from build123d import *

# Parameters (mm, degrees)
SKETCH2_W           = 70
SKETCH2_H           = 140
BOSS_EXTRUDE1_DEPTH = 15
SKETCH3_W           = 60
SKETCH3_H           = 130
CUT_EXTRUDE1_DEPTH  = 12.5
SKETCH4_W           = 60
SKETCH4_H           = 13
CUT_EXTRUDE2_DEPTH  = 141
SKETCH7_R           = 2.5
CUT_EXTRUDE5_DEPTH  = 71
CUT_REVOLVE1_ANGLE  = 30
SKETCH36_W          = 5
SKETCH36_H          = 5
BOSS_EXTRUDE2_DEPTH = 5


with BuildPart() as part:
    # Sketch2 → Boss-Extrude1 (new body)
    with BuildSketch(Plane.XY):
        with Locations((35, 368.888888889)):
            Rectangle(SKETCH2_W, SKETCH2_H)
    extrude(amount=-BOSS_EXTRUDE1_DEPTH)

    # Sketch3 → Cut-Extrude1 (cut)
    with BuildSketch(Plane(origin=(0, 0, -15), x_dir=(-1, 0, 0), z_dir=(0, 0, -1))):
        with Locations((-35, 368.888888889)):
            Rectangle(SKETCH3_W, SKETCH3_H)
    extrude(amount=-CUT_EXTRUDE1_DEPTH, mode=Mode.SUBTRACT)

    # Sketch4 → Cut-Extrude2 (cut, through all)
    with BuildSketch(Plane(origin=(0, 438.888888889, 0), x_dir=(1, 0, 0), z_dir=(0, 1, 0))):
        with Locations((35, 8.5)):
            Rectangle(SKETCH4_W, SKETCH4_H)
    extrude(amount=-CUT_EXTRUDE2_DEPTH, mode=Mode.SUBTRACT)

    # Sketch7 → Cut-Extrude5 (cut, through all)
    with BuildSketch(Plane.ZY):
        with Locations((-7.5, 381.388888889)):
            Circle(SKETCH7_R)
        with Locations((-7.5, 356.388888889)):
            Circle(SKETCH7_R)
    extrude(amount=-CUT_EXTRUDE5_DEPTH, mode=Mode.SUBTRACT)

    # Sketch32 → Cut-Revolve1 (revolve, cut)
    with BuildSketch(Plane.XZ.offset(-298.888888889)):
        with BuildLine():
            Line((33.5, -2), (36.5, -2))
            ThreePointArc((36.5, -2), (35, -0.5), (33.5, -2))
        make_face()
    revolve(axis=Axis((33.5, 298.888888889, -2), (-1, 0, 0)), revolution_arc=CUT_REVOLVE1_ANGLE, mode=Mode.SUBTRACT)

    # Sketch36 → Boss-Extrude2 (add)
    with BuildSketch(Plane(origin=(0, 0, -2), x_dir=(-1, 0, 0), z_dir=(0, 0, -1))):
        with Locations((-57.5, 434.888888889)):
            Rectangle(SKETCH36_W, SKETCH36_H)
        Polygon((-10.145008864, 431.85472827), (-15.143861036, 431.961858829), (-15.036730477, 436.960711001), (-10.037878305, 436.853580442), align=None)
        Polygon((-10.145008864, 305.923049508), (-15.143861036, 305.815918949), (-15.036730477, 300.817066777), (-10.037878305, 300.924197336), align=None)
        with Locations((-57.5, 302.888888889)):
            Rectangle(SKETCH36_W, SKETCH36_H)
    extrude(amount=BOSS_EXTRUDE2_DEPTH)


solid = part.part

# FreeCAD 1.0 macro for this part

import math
import FreeCAD as App
import Part
import Sketcher

V = App.Vector

doc = App.newDocument("Part")
body = doc.addObject("PartDesign::Body", "Body")

# Sketch on XY plane
sketch1 = body.newObject("Sketcher::SketchObject", "Sketch")
sketch1.AttachmentSupport = (doc.getObject("XY_Plane"), [""])
sketch1.MapMode = "FlatFace"
sketch1.addGeometry(Part.LineSegment(V(0, 438.888889, 0), V(0, 298.888889, 0)), False)
sketch1.addGeometry(Part.LineSegment(V(0, 298.888889, 0), V(70, 298.888889, 0)), False)
sketch1.addGeometry(Part.LineSegment(V(70, 298.888889, 0), V(70, 438.888889, 0)), False)
sketch1.addGeometry(Part.LineSegment(V(70, 438.888889, 0), V(0, 438.888889, 0)), False)
sketch1.addConstraint(Sketcher.Constraint("Coincident", 0, 2, 1, 1))
sketch1.addConstraint(Sketcher.Constraint("Coincident", 1, 2, 2, 1))
sketch1.addConstraint(Sketcher.Constraint("Coincident", 2, 2, 3, 1))
sketch1.addConstraint(Sketcher.Constraint("Coincident", 3, 2, 0, 1))
sketch1.addConstraint(Sketcher.Constraint("Vertical", 0))
sketch1.addConstraint(Sketcher.Constraint("Horizontal", 1))
sketch1.addConstraint(Sketcher.Constraint("Vertical", 2))
sketch1.addConstraint(Sketcher.Constraint("Horizontal", 3))
sketch1.addConstraint(Sketcher.Constraint("PointOnObject", 0, 2, -2))
sketch1.addConstraint(Sketcher.Constraint("DistanceX", 1, 1, 1, 2, 70.0))
sketch1.addConstraint(Sketcher.Constraint("DistanceY", 0, 2, 0, 1, 140.0))
sketch1.addConstraint(Sketcher.Constraint("DistanceY", -1, 1, 0, 2, 298.888889))
pad1 = body.newObject("PartDesign::Pad", "Pad")
pad1.Profile = sketch1
pad1.Length = 15
pad1.Reversed = True

# Sketch on XY plane
sketch2 = body.newObject("Sketcher::SketchObject", "Sketch001")
sketch2.AttachmentSupport = (doc.getObject("XY_Plane"), [""])
sketch2.MapMode = "FlatFace"
sketch2.AttachmentOffset = App.Placement(V(0, 0, -15), App.Rotation())
sketch2.addGeometry(Part.LineSegment(V(65, 433.888889, 0), V(65, 303.888889, 0)), False)
sketch2.addGeometry(Part.LineSegment(V(65, 303.888889, 0), V(5, 303.888889, 0)), False)
sketch2.addGeometry(Part.LineSegment(V(5, 303.888889, 0), V(5, 433.888889, 0)), False)
sketch2.addGeometry(Part.LineSegment(V(5, 433.888889, 0), V(65, 433.888889, 0)), False)
sketch2.addConstraint(Sketcher.Constraint("Coincident", 0, 2, 1, 1))
sketch2.addConstraint(Sketcher.Constraint("Coincident", 1, 2, 2, 1))
sketch2.addConstraint(Sketcher.Constraint("Coincident", 2, 2, 3, 1))
sketch2.addConstraint(Sketcher.Constraint("Coincident", 3, 2, 0, 1))
sketch2.addConstraint(Sketcher.Constraint("Vertical", 0))
sketch2.addConstraint(Sketcher.Constraint("Horizontal", 1))
sketch2.addConstraint(Sketcher.Constraint("Vertical", 2))
sketch2.addConstraint(Sketcher.Constraint("Horizontal", 3))
sketch2.addConstraint(Sketcher.Constraint("DistanceX", 1, 2, 1, 1, 60.0))
sketch2.addConstraint(Sketcher.Constraint("DistanceY", 0, 2, 0, 1, 130.0))
sketch2.addConstraint(Sketcher.Constraint("DistanceX", -1, 1, 0, 2, 65.0))
sketch2.addConstraint(Sketcher.Constraint("DistanceY", -1, 1, 0, 2, 303.888889))
pocket1 = body.newObject("PartDesign::Pocket", "Pocket")
pocket1.Profile = sketch2
pocket1.Length = 12.5
pocket1.Reversed = True

# Sketch on XZ plane
sketch3 = body.newObject("Sketcher::SketchObject", "Sketch002")
sketch3.AttachmentSupport = (doc.getObject("XZ_Plane"), [""])
sketch3.MapMode = "FlatFace"
sketch3.AttachmentOffset = App.Placement(V(0, 0, -438.888889), App.Rotation())
sketch3.addGeometry(Part.LineSegment(V(5, -15, 0), V(5, -2, 0)), False)
sketch3.addGeometry(Part.LineSegment(V(5, -2, 0), V(65, -2, 0)), False)
sketch3.addGeometry(Part.LineSegment(V(65, -2, 0), V(65, -15, 0)), False)
sketch3.addGeometry(Part.LineSegment(V(65, -15, 0), V(5, -15, 0)), False)
sketch3.addConstraint(Sketcher.Constraint("Coincident", 0, 2, 1, 1))
sketch3.addConstraint(Sketcher.Constraint("Coincident", 1, 2, 2, 1))
sketch3.addConstraint(Sketcher.Constraint("Coincident", 2, 2, 3, 1))
sketch3.addConstraint(Sketcher.Constraint("Coincident", 3, 2, 0, 1))
sketch3.addConstraint(Sketcher.Constraint("Vertical", 0))
sketch3.addConstraint(Sketcher.Constraint("Horizontal", 1))
sketch3.addConstraint(Sketcher.Constraint("Vertical", 2))
sketch3.addConstraint(Sketcher.Constraint("Horizontal", 3))
sketch3.addConstraint(Sketcher.Constraint("DistanceX", 1, 1, 1, 2, 60.0))
sketch3.addConstraint(Sketcher.Constraint("DistanceY", 0, 1, 0, 2, 13.0))
sketch3.addConstraint(Sketcher.Constraint("DistanceX", -1, 1, 0, 2, 5.0))
sketch3.addConstraint(Sketcher.Constraint("DistanceY", 0, 2, -1, 1, 2.0))
pocket2 = body.newObject("PartDesign::Pocket", "Pocket001")
pocket2.Profile = sketch3
pocket2.Type = "ThroughAll"
pocket2.Reversed = True

# Sketch on YZ plane
sketch4 = body.newObject("Sketcher::SketchObject", "Sketch003")
sketch4.AttachmentSupport = (doc.getObject("YZ_Plane"), [""])
sketch4.MapMode = "FlatFace"
sketch4.addGeometry(Part.Circle(V(381.388889, -7.5, 0), V(0, 0, 1), 2.5), False)
sketch4.addGeometry(Part.Circle(V(356.388889, -7.5, 0), V(0, 0, 1), 2.5), False)
sketch4.addConstraint(Sketcher.Constraint("Equal", 0, 1))
sketch4.addConstraint(Sketcher.Constraint("Horizontal", 0, 3, 1, 3))
sketch4.addConstraint(Sketcher.Constraint("Diameter", 0, 5.0))
sketch4.addConstraint(Sketcher.Constraint("DistanceX", 1, 3, 0, 3, 25.0))
sketch4.addConstraint(Sketcher.Constraint("DistanceY", 0, 3, -1, 1, 7.5))
sketch4.addConstraint(Sketcher.Constraint("DistanceX", -1, 1, 0, 3, 381.388889))
pocket3 = body.newObject("PartDesign::Pocket", "Pocket002")
pocket3.Profile = sketch4
pocket3.Type = "ThroughAll"
pocket3.Reversed = True

# Sketch on XZ plane
sketch5 = body.newObject("Sketcher::SketchObject", "Sketch004")
sketch5.AttachmentSupport = (doc.getObject("XZ_Plane"), [""])
sketch5.MapMode = "FlatFace"
sketch5.AttachmentOffset = App.Placement(V(0, 0, -298.888889), App.Rotation())
sketch5.addGeometry(Part.LineSegment(V(33.5, -2, 0), V(36.5, -2, 0)), False)
sketch5.addGeometry(Part.ArcOfCircle(Part.Circle(V(35, -2, 0), V(0, 0, 1), 1.5), math.radians(0), math.radians(180)), False)
sketch5.addGeometry(Part.LineSegment(V(36.5, -2, 0), V(33.5, -2, 0)), True)  # axis
sketch5.addConstraint(Sketcher.Constraint("Coincident", 0, 1, 1, 2))
sketch5.addConstraint(Sketcher.Constraint("Coincident", 1, 1, 0, 2))
sketch5.addConstraint(Sketcher.Constraint("Horizontal", 0))
sketch5.addConstraint(Sketcher.Constraint("Horizontal", 2))
sketch5.addConstraint(Sketcher.Constraint("Coincident", 2, 1, 1, 1))
sketch5.addConstraint(Sketcher.Constraint("Horizontal", 1, 3, 0, 1))
sketch5.addConstraint(Sketcher.Constraint("Equal", 0, 2))
sketch5.addConstraint(Sketcher.Constraint("Radius", 1, 1.5))
sketch5.addConstraint(Sketcher.Constraint("DistanceX", -1, 1, 1, 3, 35.0))
sketch5.addConstraint(Sketcher.Constraint("DistanceY", 1, 3, -1, 1, 2.0))
groove = body.newObject("PartDesign::Groove", "Groove")
groove.Profile = sketch5
groove.ReferenceAxis = (sketch5, ["Axis0"])
groove.Angle = 30

# Sketch on XY plane
sketch6 = body.newObject("Sketcher::SketchObject", "Sketch005")
sketch6.AttachmentSupport = (doc.getObject("XY_Plane"), [""])
sketch6.MapMode = "FlatFace"
sketch6.AttachmentOffset = App.Placement(V(0, 0, -2), App.Rotation())
sketch6.addGeometry(Part.LineSegment(V(60, 437.388889, 0), V(60, 432.388889, 0)), False)
sketch6.addGeometry(Part.LineSegment(V(60, 432.388889, 0), V(55, 432.388889, 0)), False)
sketch6.addGeometry(Part.LineSegment(V(55, 432.388889, 0), V(55, 437.388889, 0)), False)
sketch6.addGeometry(Part.LineSegment(V(55, 437.388889, 0), V(60, 437.388889, 0)), False)
sketch6.addGeometry(Part.LineSegment(V(15.143861, 431.961859, 0), V(10.145009, 431.854728, 0)), False)
sketch6.addGeometry(Part.LineSegment(V(10.145009, 431.854728, 0), V(10.037878, 436.85358, 0)), False)
sketch6.addGeometry(Part.LineSegment(V(10.037878, 436.85358, 0), V(15.03673, 436.960711, 0)), False)
sketch6.addGeometry(Part.LineSegment(V(15.03673, 436.960711, 0), V(15.143861, 431.961859, 0)), False)
sketch6.addGeometry(Part.LineSegment(V(10.145009, 305.92305, 0), V(15.143861, 305.815919, 0)), False)
sketch6.addGeometry(Part.LineSegment(V(15.143861, 305.815919, 0), V(15.03673, 300.817067, 0)), False)
sketch6.addGeometry(Part.LineSegment(V(15.03673, 300.817067, 0), V(10.037878, 300.924197, 0)), False)
sketch6.addGeometry(Part.LineSegment(V(10.037878, 300.924197, 0), V(10.145009, 305.92305, 0)), False)
sketch6.addGeometry(Part.LineSegment(V(60, 305.388889, 0), V(60, 300.388889, 0)), False)
sketch6.addGeometry(Part.LineSegment(V(60, 300.388889, 0), V(55, 300.388889, 0)), False)
sketch6.addGeometry(Part.LineSegment(V(55, 300.388889, 0), V(55, 305.388889, 0)), False)
sketch6.addGeometry(Part.LineSegment(V(55, 305.388889, 0), V(60, 305.388889, 0)), False)
sketch6.addConstraint(Sketcher.Constraint("Coincident", 0, 2, 1, 1))
sketch6.addConstraint(Sketcher.Constraint("Coincident", 1, 2, 2, 1))
sketch6.addConstraint(Sketcher.Constraint("Coincident", 2, 2, 3, 1))
sketch6.addConstraint(Sketcher.Constraint("Coincident", 3, 2, 0, 1))
sketch6.addConstraint(Sketcher.Constraint("Coincident", 4, 2, 5, 1))
sketch6.addConstraint(Sketcher.Constraint("Coincident", 5, 2, 6, 1))
sketch6.addConstraint(Sketcher.Constraint("Coincident", 6, 2, 7, 1))
sketch6.addConstraint(Sketcher.Constraint("Coincident", 7, 2, 4, 1))
sketch6.addConstraint(Sketcher.Constraint("Coincident", 8, 2, 9, 1))
sketch6.addConstraint(Sketcher.Constraint("Coincident", 9, 2, 10, 1))
sketch6.addConstraint(Sketcher.Constraint("Coincident", 10, 2, 11, 1))
sketch6.addConstraint(Sketcher.Constraint("Coincident", 11, 2, 8, 1))
sketch6.addConstraint(Sketcher.Constraint("Coincident", 12, 2, 13, 1))
sketch6.addConstraint(Sketcher.Constraint("Coincident", 13, 2, 14, 1))
sketch6.addConstraint(Sketcher.Constraint("Coincident", 14, 2, 15, 1))
sketch6.addConstraint(Sketcher.Constraint("Coincident", 15, 2, 12, 1))
sketch6.addConstraint(Sketcher.Constraint("Vertical", 0))
sketch6.addConstraint(Sketcher.Constraint("Horizontal", 1))
sketch6.addConstraint(Sketcher.Constraint("Vertical", 2))
sketch6.addConstraint(Sketcher.Constraint("Horizontal", 3))
sketch6.addConstraint(Sketcher.Constraint("Vertical", 12))
sketch6.addConstraint(Sketcher.Constraint("Horizontal", 13))
sketch6.addConstraint(Sketcher.Constraint("Vertical", 14))
sketch6.addConstraint(Sketcher.Constraint("Horizontal", 15))
sketch6.addConstraint(Sketcher.Constraint("Perpendicular", 4, 5))
sketch6.addConstraint(Sketcher.Constraint("Perpendicular", 5, 6))
sketch6.addConstraint(Sketcher.Constraint("Perpendicular", 6, 7))
sketch6.addConstraint(Sketcher.Constraint("Perpendicular", 8, 9))
sketch6.addConstraint(Sketcher.Constraint("Perpendicular", 9, 10))
sketch6.addConstraint(Sketcher.Constraint("Perpendicular", 10, 11))
sketch6.addConstraint(Sketcher.Constraint("Vertical", 7, 2, 8, 2))
sketch6.addConstraint(Sketcher.Constraint("Vertical", 6, 2, 9, 2))
sketch6.addConstraint(Sketcher.Constraint("Vertical", 5, 2, 10, 2))
sketch6.addConstraint(Sketcher.Constraint("Vertical", 3, 2, 12, 2))
sketch6.addConstraint(Sketcher.Constraint("Vertical", 2, 2, 13, 2))
sketch6.addConstraint(Sketcher.Constraint("Equal", 15, 0))
sketch6.addConstraint(Sketcher.Constraint("Equal", 2, 12))
sketch6.addConstraint(Sketcher.Constraint("Equal", 4, 5))
sketch6.addConstraint(Sketcher.Constraint("Equal", 8, 9))
sketch6.addConstraint(Sketcher.Constraint("DistanceX", 1, 2, 1, 1, 5.0))
sketch6.addConstraint(Sketcher.Constraint("Distance", 4, 5.0))
sketch6.addConstraint(Sketcher.Constraint("DistanceX", -1, 1, 0, 2, 60.0))
sketch6.addConstraint(Sketcher.Constraint("DistanceY", 12, 2, 0, 2, 132.0))
sketch6.addConstraint(Sketcher.Constraint("DistanceY", -1, 1, 0, 2, 432.388889))
sketch6.addConstraint(Sketcher.Constraint("DistanceX", -1, 1, 4, 2, 10.145009))
sketch6.addConstraint(Sketcher.Constraint("DistanceY", -1, 1, 4, 2, 431.854728))
sketch6.addConstraint(Sketcher.Constraint("DistanceX", -1, 1, 5, 2, 10.037878))
sketch6.addConstraint(Sketcher.Constraint("DistanceY", -1, 1, 8, 2, 305.815919))
pad2 = body.newObject("PartDesign::Pad", "Pad001")
pad2.Profile = sketch6
pad2.Length = 5
pad2.Reversed = True

doc.recompute()
